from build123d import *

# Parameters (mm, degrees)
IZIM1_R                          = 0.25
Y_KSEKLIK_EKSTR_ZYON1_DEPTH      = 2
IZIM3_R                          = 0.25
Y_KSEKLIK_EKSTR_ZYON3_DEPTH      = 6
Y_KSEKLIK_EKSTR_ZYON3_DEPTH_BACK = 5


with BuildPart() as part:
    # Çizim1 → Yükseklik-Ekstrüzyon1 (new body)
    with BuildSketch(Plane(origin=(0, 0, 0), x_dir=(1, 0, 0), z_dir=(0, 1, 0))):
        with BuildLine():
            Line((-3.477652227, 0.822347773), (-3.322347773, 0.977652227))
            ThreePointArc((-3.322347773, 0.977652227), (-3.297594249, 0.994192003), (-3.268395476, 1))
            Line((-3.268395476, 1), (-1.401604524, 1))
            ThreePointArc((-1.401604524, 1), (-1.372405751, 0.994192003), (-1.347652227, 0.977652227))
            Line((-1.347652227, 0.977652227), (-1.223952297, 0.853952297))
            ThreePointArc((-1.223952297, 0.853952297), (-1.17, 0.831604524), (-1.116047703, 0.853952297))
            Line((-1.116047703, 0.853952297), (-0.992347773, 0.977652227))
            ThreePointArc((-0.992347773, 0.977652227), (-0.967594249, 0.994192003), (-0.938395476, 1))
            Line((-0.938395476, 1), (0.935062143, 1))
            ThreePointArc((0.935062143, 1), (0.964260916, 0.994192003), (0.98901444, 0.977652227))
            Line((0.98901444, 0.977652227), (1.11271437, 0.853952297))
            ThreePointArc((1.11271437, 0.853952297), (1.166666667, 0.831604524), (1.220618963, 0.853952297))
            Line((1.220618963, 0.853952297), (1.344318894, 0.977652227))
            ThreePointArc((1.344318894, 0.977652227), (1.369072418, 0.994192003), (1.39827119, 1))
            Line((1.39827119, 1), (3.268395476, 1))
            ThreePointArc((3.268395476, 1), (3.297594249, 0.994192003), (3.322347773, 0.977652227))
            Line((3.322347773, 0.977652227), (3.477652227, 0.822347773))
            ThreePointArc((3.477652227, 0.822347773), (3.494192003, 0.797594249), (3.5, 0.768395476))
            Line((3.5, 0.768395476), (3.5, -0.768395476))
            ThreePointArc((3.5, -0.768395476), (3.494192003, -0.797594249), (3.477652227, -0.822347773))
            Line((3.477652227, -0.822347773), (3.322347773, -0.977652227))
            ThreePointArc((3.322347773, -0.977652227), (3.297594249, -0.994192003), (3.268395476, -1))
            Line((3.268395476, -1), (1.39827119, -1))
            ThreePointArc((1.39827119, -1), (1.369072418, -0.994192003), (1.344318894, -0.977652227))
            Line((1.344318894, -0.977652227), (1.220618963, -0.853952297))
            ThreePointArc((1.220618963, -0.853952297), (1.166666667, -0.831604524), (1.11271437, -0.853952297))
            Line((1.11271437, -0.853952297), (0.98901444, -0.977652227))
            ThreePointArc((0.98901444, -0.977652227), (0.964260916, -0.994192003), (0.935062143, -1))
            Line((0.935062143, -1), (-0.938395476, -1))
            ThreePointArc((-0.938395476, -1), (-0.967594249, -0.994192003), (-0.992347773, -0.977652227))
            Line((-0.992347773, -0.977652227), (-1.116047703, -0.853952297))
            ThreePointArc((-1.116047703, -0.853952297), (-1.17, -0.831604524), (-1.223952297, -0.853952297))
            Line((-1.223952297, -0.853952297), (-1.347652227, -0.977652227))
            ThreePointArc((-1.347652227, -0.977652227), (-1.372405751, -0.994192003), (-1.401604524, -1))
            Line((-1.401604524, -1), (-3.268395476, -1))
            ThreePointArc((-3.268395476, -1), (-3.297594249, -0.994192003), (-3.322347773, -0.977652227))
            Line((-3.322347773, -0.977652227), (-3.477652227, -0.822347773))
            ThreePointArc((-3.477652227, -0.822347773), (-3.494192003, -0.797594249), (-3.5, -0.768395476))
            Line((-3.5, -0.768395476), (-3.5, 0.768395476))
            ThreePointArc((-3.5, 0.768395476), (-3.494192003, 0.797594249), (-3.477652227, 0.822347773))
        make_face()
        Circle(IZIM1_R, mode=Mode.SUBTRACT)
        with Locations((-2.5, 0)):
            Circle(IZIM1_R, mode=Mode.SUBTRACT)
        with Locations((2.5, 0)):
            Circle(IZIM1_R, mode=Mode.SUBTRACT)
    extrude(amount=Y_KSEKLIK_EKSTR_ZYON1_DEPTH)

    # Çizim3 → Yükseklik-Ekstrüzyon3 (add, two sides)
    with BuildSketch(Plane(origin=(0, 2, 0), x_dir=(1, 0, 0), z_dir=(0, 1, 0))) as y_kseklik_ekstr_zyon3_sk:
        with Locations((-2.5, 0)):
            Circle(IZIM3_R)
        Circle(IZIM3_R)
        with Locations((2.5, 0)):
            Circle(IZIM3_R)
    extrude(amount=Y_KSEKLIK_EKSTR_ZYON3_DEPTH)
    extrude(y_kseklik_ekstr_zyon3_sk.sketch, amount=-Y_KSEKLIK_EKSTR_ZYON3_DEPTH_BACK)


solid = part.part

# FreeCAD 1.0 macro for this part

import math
import FreeCAD as App
import Part
import Sketcher

doc = App.newDocument("Part")
body = doc.addObject("PartDesign::Body", "Body")

# Sketch on XZ plane
sketch1 = body.newObject("Sketcher::SketchObject", "Sketch")
sketch1.AttachmentSupport = (doc.getObject("XZ_Plane"), [""])
sketch1.MapMode = "FlatFace"
sketch1.addGeometry([
    Part.LineSegment(App.Vector(-3.32, -0.98, 0), App.Vector(-3.48, -0.82, 0)),  # 0
    Part.ArcOfCircle(Part.Circle(App.Vector(-3.42, -0.77, 0), App.Vector(0, 0, 1), 0.08), math.radians(180), math.radians(225)),  # 1
    Part.LineSegment(App.Vector(-3.5, -0.77, 0), App.Vector(-3.5, 0.77, 0)),  # 2
    Part.ArcOfCircle(Part.Circle(App.Vector(-3.42, 0.77, 0), App.Vector(0, 0, 1), 0.08), math.radians(135), math.radians(180)),  # 3
    Part.LineSegment(App.Vector(-3.48, 0.82, 0), App.Vector(-3.32, 0.98, 0)),  # 4
    Part.ArcOfCircle(Part.Circle(App.Vector(-3.27, 0.92, 0), App.Vector(0, 0, 1), 0.08), math.radians(90), math.radians(135)),  # 5
    Part.LineSegment(App.Vector(-3.27, 1, 0), App.Vector(-1.4, 1, 0)),  # 6
    Part.ArcOfCircle(Part.Circle(App.Vector(-1.4, 0.92, 0), App.Vector(0, 0, 1), 0.08), math.radians(45), math.radians(90)),  # 7
    Part.LineSegment(App.Vector(-1.35, 0.98, 0), App.Vector(-1.22, 0.85, 0)),  # 8
    Part.ArcOfCircle(Part.Circle(App.Vector(-1.17, 0.91, 0), App.Vector(0, 0, 1), 0.08), math.radians(-135), math.radians(-45)),  # 9
    Part.LineSegment(App.Vector(-1.12, 0.85, 0), App.Vector(-0.99, 0.98, 0)),  # 10
    Part.ArcOfCircle(Part.Circle(App.Vector(-0.94, 0.92, 0), App.Vector(0, 0, 1), 0.08), math.radians(90), math.radians(135)),  # 11
    Part.LineSegment(App.Vector(-0.94, 1, 0), App.Vector(0.94, 1, 0)),  # 12
    Part.ArcOfCircle(Part.Circle(App.Vector(0.94, 0.92, 0), App.Vector(0, 0, 1), 0.08), math.radians(45), math.radians(90)),  # 13
    Part.LineSegment(App.Vector(0.99, 0.98, 0), App.Vector(1.11, 0.85, 0)),  # 14
    Part.ArcOfCircle(Part.Circle(App.Vector(1.17, 0.91, 0), App.Vector(0, 0, 1), 0.08), math.radians(-135), math.radians(-45)),  # 15
    Part.LineSegment(App.Vector(1.22, 0.85, 0), App.Vector(1.34, 0.98, 0)),  # 16
    Part.ArcOfCircle(Part.Circle(App.Vector(1.4, 0.92, 0), App.Vector(0, 0, 1), 0.08), math.radians(90), math.radians(135)),  # 17
    Part.LineSegment(App.Vector(1.4, 1, 0), App.Vector(3.27, 1, 0)),  # 18
    Part.ArcOfCircle(Part.Circle(App.Vector(3.27, 0.92, 0), App.Vector(0, 0, 1), 0.08), math.radians(45), math.radians(90)),  # 19
    Part.LineSegment(App.Vector(3.32, 0.98, 0), App.Vector(3.48, 0.82, 0)),  # 20
    Part.ArcOfCircle(Part.Circle(App.Vector(3.42, 0.77, 0), App.Vector(0, 0, 1), 0.08), math.radians(0), math.radians(45)),  # 21
    Part.LineSegment(App.Vector(3.5, 0.77, 0), App.Vector(3.5, -0.77, 0)),  # 22
    Part.ArcOfCircle(Part.Circle(App.Vector(3.42, -0.77, 0), App.Vector(0, 0, 1), 0.08), math.radians(-45), math.radians(0)),  # 23
    Part.LineSegment(App.Vector(3.48, -0.82, 0), App.Vector(3.32, -0.98, 0)),  # 24
    Part.ArcOfCircle(Part.Circle(App.Vector(3.27, -0.92, 0), App.Vector(0, 0, 1), 0.08), math.radians(-90), math.radians(-45)),  # 25
    Part.LineSegment(App.Vector(3.27, -1, 0), App.Vector(1.4, -1, 0)),  # 26
    Part.ArcOfCircle(Part.Circle(App.Vector(1.4, -0.92, 0), App.Vector(0, 0, 1), 0.08), math.radians(-135), math.radians(-90)),  # 27
    Part.LineSegment(App.Vector(1.34, -0.98, 0), App.Vector(1.22, -0.85, 0)),  # 28
    Part.ArcOfCircle(Part.Circle(App.Vector(1.17, -0.91, 0), App.Vector(0, 0, 1), 0.08), math.radians(45), math.radians(135)),  # 29
    Part.LineSegment(App.Vector(1.11, -0.85, 0), App.Vector(0.99, -0.98, 0)),  # 30
    Part.ArcOfCircle(Part.Circle(App.Vector(0.94, -0.92, 0), App.Vector(0, 0, 1), 0.08), math.radians(-90), math.radians(-45)),  # 31
    Part.LineSegment(App.Vector(0.94, -1, 0), App.Vector(-0.94, -1, 0)),  # 32
    Part.ArcOfCircle(Part.Circle(App.Vector(-0.94, -0.92, 0), App.Vector(0, 0, 1), 0.08), math.radians(-135), math.radians(-90)),  # 33
    Part.LineSegment(App.Vector(-0.99, -0.98, 0), App.Vector(-1.12, -0.85, 0)),  # 34
    Part.ArcOfCircle(Part.Circle(App.Vector(-1.17, -0.91, 0), App.Vector(0, 0, 1), 0.08), math.radians(45), math.radians(135)),  # 35
    Part.LineSegment(App.Vector(-1.22, -0.85, 0), App.Vector(-1.35, -0.98, 0)),  # 36
    Part.ArcOfCircle(Part.Circle(App.Vector(-1.4, -0.92, 0), App.Vector(0, 0, 1), 0.08), math.radians(-90), math.radians(-45)),  # 37
    Part.LineSegment(App.Vector(-1.4, -1, 0), App.Vector(-3.27, -1, 0)),  # 38
    Part.ArcOfCircle(Part.Circle(App.Vector(-3.27, -0.92, 0), App.Vector(0, 0, 1), 0.08), math.radians(-135), math.radians(-90)),  # 39
    Part.Circle(App.Vector(2.5, 0, 0), App.Vector(0, 0, 1), 0.25),  # 40
    Part.Circle(App.Vector(0, 0, 0), App.Vector(0, 0, 1), 0.25),  # 41
    Part.Circle(App.Vector(-2.5, 0, 0), App.Vector(0, 0, 1), 0.25),  # 42
], False)
sketch1.addConstraint([
    Sketcher.Constraint("Tangent", 0, 2, 1, 2),
    Sketcher.Constraint("Tangent", 1, 1, 2, 1),
    Sketcher.Constraint("Tangent", 2, 2, 3, 2),
    Sketcher.Constraint("Tangent", 3, 1, 4, 1),
    Sketcher.Constraint("Tangent", 4, 2, 5, 2),
    Sketcher.Constraint("Tangent", 5, 1, 6, 1),
    Sketcher.Constraint("Tangent", 6, 2, 7, 2),
    Sketcher.Constraint("Tangent", 7, 1, 8, 1),
    Sketcher.Constraint("Tangent", 8, 2, 9, 1),
    Sketcher.Constraint("Tangent", 9, 2, 10, 1),
    Sketcher.Constraint("Tangent", 10, 2, 11, 2),
    Sketcher.Constraint("Tangent", 11, 1, 12, 1),
    Sketcher.Constraint("Tangent", 12, 2, 13, 2),
    Sketcher.Constraint("Tangent", 13, 1, 14, 1),
    Sketcher.Constraint("Tangent", 14, 2, 15, 1),
    Sketcher.Constraint("Tangent", 15, 2, 16, 1),
    Sketcher.Constraint("Tangent", 16, 2, 17, 2),
    Sketcher.Constraint("Tangent", 17, 1, 18, 1),
    Sketcher.Constraint("Tangent", 18, 2, 19, 2),
    Sketcher.Constraint("Tangent", 19, 1, 20, 1),
    Sketcher.Constraint("Tangent", 20, 2, 21, 2),
    Sketcher.Constraint("Tangent", 21, 1, 22, 1),
    Sketcher.Constraint("Tangent", 22, 2, 23, 2),
    Sketcher.Constraint("Tangent", 23, 1, 24, 1),
    Sketcher.Constraint("Tangent", 24, 2, 25, 2),
    Sketcher.Constraint("Tangent", 25, 1, 26, 1),
    Sketcher.Constraint("Tangent", 26, 2, 27, 2),
    Sketcher.Constraint("Tangent", 27, 1, 28, 1),
    Sketcher.Constraint("Tangent", 28, 2, 29, 1),
    Sketcher.Constraint("Tangent", 29, 2, 30, 1),
    Sketcher.Constraint("Tangent", 30, 2, 31, 2),
    Sketcher.Constraint("Tangent", 31, 1, 32, 1),
    Sketcher.Constraint("Tangent", 32, 2, 33, 2),
    Sketcher.Constraint("Tangent", 33, 1, 34, 1),
    Sketcher.Constraint("Tangent", 34, 2, 35, 1),
    Sketcher.Constraint("Tangent", 35, 2, 36, 1),
    Sketcher.Constraint("Tangent", 36, 2, 37, 2),
    Sketcher.Constraint("Tangent", 37, 1, 38, 1),
    Sketcher.Constraint("Tangent", 38, 2, 39, 2),
    Sketcher.Constraint("Tangent", 39, 1, 0, 1),
    Sketcher.Constraint("Vertical", 2),
    Sketcher.Constraint("Horizontal", 6),
    Sketcher.Constraint("Horizontal", 12),
    Sketcher.Constraint("Horizontal", 18),
    Sketcher.Constraint("Vertical", 22),
    Sketcher.Constraint("Horizontal", 26),
    Sketcher.Constraint("Horizontal", 32),
    Sketcher.Constraint("Horizontal", 38),
    Sketcher.Constraint("Coincident", 41, 3, -1, 1),
    Sketcher.Constraint("Equal", 1, 3),
    Sketcher.Constraint("Equal", 3, 5),
    Sketcher.Constraint("Equal", 5, 7),
    Sketcher.Constraint("Equal", 7, 9),
    Sketcher.Constraint("Equal", 9, 11),
    Sketcher.Constraint("Equal", 11, 13),
    Sketcher.Constraint("Equal", 13, 15),
    Sketcher.Constraint("Equal", 15, 17),
    Sketcher.Constraint("Equal", 17, 19),
    Sketcher.Constraint("Equal", 19, 21),
    Sketcher.Constraint("Equal", 21, 23),
    Sketcher.Constraint("Equal", 23, 25),
    Sketcher.Constraint("Equal", 25, 27),
    Sketcher.Constraint("Equal", 27, 29),
    Sketcher.Constraint("Equal", 29, 31),
    Sketcher.Constraint("Equal", 31, 33),
    Sketcher.Constraint("Equal", 33, 35),
    Sketcher.Constraint("Equal", 35, 37),
    Sketcher.Constraint("Equal", 37, 39),
    Sketcher.Constraint("Equal", 40, 41),
    Sketcher.Constraint("Equal", 41, 42),
    Sketcher.Constraint("Symmetric", 1, 3, 21, 3, -1, 1),
    Sketcher.Constraint("Symmetric", 5, 3, 25, 3, -1, 1),
    Sketcher.Constraint("Symmetric", 19, 3, 39, 3, -1, 1),
    Sketcher.Constraint("Symmetric", 40, 3, 42, 3, -1, 1),
    Sketcher.Constraint("Symmetric", 5, 3, 19, 3, -2),
    Sketcher.Constraint("Symmetric", 15, 3, 29, 3, -1),
    Sketcher.Constraint("Symmetric", 13, 3, 31, 3, -1),
    Sketcher.Constraint("Symmetric", 9, 3, 35, 3, -1),
    Sketcher.Constraint("PointOnObject", 40, 3, -1),
    Sketcher.Constraint("Perpendicular", 0, 4),
    Sketcher.Constraint("Perpendicular", 4, 8),
    Sketcher.Constraint("Perpendicular", 8, 10),
    Sketcher.Constraint("Perpendicular", 10, 14),
    Sketcher.Constraint("Perpendicular", 14, 16),
    Sketcher.Constraint("Perpendicular", 20, 24),
    Sketcher.Constraint("Perpendicular", 24, 28),
    Sketcher.Constraint("Perpendicular", 28, 30),
    Sketcher.Constraint("Perpendicular", 30, 34),
    Sketcher.Constraint("Perpendicular", 34, 36),
    Sketcher.Constraint("Horizontal", 7, 3, 11, 3),
    Sketcher.Constraint("Horizontal", 9, 3, 15, 3),
    Sketcher.Constraint("Diameter", 40, 0.5),
    Sketcher.Constraint("DistanceY", -1, 1, 5, 1, 1.0),
    Sketcher.Constraint("DistanceX", -1, 1, 40, 3, 2.5),
    Sketcher.Constraint("DistanceX", 1, 1, -1, 1, 3.5),
    Sketcher.Constraint("Radius", 1, 0.0763),
    Sketcher.Constraint("DistanceX", 9, 3, -1, 1, 1.17),
    Sketcher.Constraint("DistanceX", 6, 1, 6, 2, 1.866791),
    Sketcher.Constraint("DistanceY", 2, 1, 2, 2, 1.536791),
    Sketcher.Constraint("DistanceX", 12, 1, 12, 2, 1.873458),
])
pad1 = body.newObject("PartDesign::Pad", "Pad")
pad1.Profile = sketch1
pad1.Length = 2
pad1.Reversed = True

# Sketch on XZ plane
sketch2 = body.newObject("Sketcher::SketchObject", "Sketch001")
sketch2.AttachmentSupport = (doc.getObject("XZ_Plane"), [""])
sketch2.MapMode = "FlatFace"
sketch2.AttachmentOffset = App.Placement(App.Vector(0, 0, -2), App.Rotation())
sketch2.addGeometry([
    Part.Circle(App.Vector(-2.5, 0, 0), App.Vector(0, 0, 1), 0.25),
    Part.Circle(App.Vector(0, 0, 0), App.Vector(0, 0, 1), 0.25),
    Part.Circle(App.Vector(2.5, 0, 0), App.Vector(0, 0, 1), 0.25),
], False)
sketch2.addConstraint([
    Sketcher.Constraint("Coincident", 1, 3, -1, 1),
    Sketcher.Constraint("Equal", 0, 1),
    Sketcher.Constraint("Equal", 1, 2),
    Sketcher.Constraint("Symmetric", 0, 3, 2, 3, -1, 1),
    Sketcher.Constraint("PointOnObject", 0, 3, -1),
    Sketcher.Constraint("Diameter", 0, 0.5),
    Sketcher.Constraint("DistanceX", 0, 3, 2, 3, 5.0),
])
pad2 = body.newObject("PartDesign::Pad", "Pad001")
pad2.Profile = sketch2
pad2.Type = "TwoLengths"
pad2.Length = 6
pad2.Length2 = 5
pad2.Reversed = True

doc.recompute()
